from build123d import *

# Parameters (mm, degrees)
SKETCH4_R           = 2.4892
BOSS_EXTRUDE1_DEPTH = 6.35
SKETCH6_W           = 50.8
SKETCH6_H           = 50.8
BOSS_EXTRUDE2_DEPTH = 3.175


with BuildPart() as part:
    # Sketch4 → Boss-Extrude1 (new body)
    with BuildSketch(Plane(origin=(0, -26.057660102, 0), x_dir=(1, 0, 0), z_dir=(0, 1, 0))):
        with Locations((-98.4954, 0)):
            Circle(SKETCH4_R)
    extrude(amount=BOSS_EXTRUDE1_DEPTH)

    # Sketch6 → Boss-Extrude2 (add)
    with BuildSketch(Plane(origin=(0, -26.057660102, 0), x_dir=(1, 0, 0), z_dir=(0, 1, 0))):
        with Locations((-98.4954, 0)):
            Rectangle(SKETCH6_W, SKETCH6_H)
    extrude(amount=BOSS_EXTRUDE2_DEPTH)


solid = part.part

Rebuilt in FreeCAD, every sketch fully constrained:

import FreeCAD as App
import Part
import Sketcher
Q = App.Units.Quantity


def add_polygon(sketch, points):
    """Adds a closed chain of lines whose ends are joined by coincident constraints."""
    first, n = sketch.GeometryCount, len(points)
    for a, b in zip(points, points[1:] + points[:1]):
        sketch.addGeometry(Part.LineSegment(App.Vector(*a, 0), App.Vector(*b, 0)), False)
    for i in range(n):
        sketch.addConstraint(Sketcher.Constraint("Coincident", first + i, 2, first + (i + 1) % n, 1))

doc = App.newDocument("Part")
body = doc.addObject("PartDesign::Body", "Body")

# Sketch on XZ plane
sketch1 = body.newObject("Sketcher::SketchObject", "Sketch")
sketch1.AttachmentSupport = (doc.getObject("XZ_Plane"), [""])
sketch1.MapMode = "FlatFace"
sketch1.AttachmentOffset = App.Placement(App.Vector(0, 0, 26.05766), App.Rotation())
sketch1.addGeometry(Part.Circle(App.Vector(-98.5, 0, 0), App.Vector(0, 0, 1), 2.5), False)
sketch1.addConstraint([
    Sketcher.Constraint("PointOnObject", 0, 3, -1),
    Sketcher.Constraint("Diameter", 0, Q("0.196 in")),
    Sketcher.Constraint("DistanceX", 0, 3, -1, 1, 98.4954),
])
pad1 = body.newObject("PartDesign::Pad", "Pad")
pad1.Profile = sketch1
pad1.Length = Q("0.25 in")
pad1.Reversed = True

# Sketch on XZ plane
sketch2 = body.newObject("Sketcher::SketchObject", "Sketch001")
sketch2.AttachmentSupport = (doc.getObject("XZ_Plane"), [""])
sketch2.MapMode = "FlatFace"
sketch2.AttachmentOffset = App.Placement(App.Vector(0, 0, 26.05766), App.Rotation())
add_polygon(sketch2, [(-124, -25), (-124, 25), (-73, 25), (-73, -25)])  # lines 0-3
sketch2.addConstraint([
    Sketcher.Constraint("Vertical", 0),
    Sketcher.Constraint("Horizontal", 1),
    Sketcher.Constraint("Vertical", 2),
    Sketcher.Constraint("Horizontal", 3),
    Sketcher.Constraint("Equal", 3, 0),
    Sketcher.Constraint("DistanceX", 1, 1, 1, 2, Q("2 in")),
    Sketcher.Constraint("DistanceY", -1, 1, 0, 2, Q("1 in")),
    Sketcher.Constraint("DistanceX", 0, 2, -1, 1, 123.8954),
])
pad2 = body.newObject("PartDesign::Pad", "Pad001")
pad2.Profile = sketch2
pad2.Length = Q("0.125 in")
pad2.Reversed = True

doc.recompute()
